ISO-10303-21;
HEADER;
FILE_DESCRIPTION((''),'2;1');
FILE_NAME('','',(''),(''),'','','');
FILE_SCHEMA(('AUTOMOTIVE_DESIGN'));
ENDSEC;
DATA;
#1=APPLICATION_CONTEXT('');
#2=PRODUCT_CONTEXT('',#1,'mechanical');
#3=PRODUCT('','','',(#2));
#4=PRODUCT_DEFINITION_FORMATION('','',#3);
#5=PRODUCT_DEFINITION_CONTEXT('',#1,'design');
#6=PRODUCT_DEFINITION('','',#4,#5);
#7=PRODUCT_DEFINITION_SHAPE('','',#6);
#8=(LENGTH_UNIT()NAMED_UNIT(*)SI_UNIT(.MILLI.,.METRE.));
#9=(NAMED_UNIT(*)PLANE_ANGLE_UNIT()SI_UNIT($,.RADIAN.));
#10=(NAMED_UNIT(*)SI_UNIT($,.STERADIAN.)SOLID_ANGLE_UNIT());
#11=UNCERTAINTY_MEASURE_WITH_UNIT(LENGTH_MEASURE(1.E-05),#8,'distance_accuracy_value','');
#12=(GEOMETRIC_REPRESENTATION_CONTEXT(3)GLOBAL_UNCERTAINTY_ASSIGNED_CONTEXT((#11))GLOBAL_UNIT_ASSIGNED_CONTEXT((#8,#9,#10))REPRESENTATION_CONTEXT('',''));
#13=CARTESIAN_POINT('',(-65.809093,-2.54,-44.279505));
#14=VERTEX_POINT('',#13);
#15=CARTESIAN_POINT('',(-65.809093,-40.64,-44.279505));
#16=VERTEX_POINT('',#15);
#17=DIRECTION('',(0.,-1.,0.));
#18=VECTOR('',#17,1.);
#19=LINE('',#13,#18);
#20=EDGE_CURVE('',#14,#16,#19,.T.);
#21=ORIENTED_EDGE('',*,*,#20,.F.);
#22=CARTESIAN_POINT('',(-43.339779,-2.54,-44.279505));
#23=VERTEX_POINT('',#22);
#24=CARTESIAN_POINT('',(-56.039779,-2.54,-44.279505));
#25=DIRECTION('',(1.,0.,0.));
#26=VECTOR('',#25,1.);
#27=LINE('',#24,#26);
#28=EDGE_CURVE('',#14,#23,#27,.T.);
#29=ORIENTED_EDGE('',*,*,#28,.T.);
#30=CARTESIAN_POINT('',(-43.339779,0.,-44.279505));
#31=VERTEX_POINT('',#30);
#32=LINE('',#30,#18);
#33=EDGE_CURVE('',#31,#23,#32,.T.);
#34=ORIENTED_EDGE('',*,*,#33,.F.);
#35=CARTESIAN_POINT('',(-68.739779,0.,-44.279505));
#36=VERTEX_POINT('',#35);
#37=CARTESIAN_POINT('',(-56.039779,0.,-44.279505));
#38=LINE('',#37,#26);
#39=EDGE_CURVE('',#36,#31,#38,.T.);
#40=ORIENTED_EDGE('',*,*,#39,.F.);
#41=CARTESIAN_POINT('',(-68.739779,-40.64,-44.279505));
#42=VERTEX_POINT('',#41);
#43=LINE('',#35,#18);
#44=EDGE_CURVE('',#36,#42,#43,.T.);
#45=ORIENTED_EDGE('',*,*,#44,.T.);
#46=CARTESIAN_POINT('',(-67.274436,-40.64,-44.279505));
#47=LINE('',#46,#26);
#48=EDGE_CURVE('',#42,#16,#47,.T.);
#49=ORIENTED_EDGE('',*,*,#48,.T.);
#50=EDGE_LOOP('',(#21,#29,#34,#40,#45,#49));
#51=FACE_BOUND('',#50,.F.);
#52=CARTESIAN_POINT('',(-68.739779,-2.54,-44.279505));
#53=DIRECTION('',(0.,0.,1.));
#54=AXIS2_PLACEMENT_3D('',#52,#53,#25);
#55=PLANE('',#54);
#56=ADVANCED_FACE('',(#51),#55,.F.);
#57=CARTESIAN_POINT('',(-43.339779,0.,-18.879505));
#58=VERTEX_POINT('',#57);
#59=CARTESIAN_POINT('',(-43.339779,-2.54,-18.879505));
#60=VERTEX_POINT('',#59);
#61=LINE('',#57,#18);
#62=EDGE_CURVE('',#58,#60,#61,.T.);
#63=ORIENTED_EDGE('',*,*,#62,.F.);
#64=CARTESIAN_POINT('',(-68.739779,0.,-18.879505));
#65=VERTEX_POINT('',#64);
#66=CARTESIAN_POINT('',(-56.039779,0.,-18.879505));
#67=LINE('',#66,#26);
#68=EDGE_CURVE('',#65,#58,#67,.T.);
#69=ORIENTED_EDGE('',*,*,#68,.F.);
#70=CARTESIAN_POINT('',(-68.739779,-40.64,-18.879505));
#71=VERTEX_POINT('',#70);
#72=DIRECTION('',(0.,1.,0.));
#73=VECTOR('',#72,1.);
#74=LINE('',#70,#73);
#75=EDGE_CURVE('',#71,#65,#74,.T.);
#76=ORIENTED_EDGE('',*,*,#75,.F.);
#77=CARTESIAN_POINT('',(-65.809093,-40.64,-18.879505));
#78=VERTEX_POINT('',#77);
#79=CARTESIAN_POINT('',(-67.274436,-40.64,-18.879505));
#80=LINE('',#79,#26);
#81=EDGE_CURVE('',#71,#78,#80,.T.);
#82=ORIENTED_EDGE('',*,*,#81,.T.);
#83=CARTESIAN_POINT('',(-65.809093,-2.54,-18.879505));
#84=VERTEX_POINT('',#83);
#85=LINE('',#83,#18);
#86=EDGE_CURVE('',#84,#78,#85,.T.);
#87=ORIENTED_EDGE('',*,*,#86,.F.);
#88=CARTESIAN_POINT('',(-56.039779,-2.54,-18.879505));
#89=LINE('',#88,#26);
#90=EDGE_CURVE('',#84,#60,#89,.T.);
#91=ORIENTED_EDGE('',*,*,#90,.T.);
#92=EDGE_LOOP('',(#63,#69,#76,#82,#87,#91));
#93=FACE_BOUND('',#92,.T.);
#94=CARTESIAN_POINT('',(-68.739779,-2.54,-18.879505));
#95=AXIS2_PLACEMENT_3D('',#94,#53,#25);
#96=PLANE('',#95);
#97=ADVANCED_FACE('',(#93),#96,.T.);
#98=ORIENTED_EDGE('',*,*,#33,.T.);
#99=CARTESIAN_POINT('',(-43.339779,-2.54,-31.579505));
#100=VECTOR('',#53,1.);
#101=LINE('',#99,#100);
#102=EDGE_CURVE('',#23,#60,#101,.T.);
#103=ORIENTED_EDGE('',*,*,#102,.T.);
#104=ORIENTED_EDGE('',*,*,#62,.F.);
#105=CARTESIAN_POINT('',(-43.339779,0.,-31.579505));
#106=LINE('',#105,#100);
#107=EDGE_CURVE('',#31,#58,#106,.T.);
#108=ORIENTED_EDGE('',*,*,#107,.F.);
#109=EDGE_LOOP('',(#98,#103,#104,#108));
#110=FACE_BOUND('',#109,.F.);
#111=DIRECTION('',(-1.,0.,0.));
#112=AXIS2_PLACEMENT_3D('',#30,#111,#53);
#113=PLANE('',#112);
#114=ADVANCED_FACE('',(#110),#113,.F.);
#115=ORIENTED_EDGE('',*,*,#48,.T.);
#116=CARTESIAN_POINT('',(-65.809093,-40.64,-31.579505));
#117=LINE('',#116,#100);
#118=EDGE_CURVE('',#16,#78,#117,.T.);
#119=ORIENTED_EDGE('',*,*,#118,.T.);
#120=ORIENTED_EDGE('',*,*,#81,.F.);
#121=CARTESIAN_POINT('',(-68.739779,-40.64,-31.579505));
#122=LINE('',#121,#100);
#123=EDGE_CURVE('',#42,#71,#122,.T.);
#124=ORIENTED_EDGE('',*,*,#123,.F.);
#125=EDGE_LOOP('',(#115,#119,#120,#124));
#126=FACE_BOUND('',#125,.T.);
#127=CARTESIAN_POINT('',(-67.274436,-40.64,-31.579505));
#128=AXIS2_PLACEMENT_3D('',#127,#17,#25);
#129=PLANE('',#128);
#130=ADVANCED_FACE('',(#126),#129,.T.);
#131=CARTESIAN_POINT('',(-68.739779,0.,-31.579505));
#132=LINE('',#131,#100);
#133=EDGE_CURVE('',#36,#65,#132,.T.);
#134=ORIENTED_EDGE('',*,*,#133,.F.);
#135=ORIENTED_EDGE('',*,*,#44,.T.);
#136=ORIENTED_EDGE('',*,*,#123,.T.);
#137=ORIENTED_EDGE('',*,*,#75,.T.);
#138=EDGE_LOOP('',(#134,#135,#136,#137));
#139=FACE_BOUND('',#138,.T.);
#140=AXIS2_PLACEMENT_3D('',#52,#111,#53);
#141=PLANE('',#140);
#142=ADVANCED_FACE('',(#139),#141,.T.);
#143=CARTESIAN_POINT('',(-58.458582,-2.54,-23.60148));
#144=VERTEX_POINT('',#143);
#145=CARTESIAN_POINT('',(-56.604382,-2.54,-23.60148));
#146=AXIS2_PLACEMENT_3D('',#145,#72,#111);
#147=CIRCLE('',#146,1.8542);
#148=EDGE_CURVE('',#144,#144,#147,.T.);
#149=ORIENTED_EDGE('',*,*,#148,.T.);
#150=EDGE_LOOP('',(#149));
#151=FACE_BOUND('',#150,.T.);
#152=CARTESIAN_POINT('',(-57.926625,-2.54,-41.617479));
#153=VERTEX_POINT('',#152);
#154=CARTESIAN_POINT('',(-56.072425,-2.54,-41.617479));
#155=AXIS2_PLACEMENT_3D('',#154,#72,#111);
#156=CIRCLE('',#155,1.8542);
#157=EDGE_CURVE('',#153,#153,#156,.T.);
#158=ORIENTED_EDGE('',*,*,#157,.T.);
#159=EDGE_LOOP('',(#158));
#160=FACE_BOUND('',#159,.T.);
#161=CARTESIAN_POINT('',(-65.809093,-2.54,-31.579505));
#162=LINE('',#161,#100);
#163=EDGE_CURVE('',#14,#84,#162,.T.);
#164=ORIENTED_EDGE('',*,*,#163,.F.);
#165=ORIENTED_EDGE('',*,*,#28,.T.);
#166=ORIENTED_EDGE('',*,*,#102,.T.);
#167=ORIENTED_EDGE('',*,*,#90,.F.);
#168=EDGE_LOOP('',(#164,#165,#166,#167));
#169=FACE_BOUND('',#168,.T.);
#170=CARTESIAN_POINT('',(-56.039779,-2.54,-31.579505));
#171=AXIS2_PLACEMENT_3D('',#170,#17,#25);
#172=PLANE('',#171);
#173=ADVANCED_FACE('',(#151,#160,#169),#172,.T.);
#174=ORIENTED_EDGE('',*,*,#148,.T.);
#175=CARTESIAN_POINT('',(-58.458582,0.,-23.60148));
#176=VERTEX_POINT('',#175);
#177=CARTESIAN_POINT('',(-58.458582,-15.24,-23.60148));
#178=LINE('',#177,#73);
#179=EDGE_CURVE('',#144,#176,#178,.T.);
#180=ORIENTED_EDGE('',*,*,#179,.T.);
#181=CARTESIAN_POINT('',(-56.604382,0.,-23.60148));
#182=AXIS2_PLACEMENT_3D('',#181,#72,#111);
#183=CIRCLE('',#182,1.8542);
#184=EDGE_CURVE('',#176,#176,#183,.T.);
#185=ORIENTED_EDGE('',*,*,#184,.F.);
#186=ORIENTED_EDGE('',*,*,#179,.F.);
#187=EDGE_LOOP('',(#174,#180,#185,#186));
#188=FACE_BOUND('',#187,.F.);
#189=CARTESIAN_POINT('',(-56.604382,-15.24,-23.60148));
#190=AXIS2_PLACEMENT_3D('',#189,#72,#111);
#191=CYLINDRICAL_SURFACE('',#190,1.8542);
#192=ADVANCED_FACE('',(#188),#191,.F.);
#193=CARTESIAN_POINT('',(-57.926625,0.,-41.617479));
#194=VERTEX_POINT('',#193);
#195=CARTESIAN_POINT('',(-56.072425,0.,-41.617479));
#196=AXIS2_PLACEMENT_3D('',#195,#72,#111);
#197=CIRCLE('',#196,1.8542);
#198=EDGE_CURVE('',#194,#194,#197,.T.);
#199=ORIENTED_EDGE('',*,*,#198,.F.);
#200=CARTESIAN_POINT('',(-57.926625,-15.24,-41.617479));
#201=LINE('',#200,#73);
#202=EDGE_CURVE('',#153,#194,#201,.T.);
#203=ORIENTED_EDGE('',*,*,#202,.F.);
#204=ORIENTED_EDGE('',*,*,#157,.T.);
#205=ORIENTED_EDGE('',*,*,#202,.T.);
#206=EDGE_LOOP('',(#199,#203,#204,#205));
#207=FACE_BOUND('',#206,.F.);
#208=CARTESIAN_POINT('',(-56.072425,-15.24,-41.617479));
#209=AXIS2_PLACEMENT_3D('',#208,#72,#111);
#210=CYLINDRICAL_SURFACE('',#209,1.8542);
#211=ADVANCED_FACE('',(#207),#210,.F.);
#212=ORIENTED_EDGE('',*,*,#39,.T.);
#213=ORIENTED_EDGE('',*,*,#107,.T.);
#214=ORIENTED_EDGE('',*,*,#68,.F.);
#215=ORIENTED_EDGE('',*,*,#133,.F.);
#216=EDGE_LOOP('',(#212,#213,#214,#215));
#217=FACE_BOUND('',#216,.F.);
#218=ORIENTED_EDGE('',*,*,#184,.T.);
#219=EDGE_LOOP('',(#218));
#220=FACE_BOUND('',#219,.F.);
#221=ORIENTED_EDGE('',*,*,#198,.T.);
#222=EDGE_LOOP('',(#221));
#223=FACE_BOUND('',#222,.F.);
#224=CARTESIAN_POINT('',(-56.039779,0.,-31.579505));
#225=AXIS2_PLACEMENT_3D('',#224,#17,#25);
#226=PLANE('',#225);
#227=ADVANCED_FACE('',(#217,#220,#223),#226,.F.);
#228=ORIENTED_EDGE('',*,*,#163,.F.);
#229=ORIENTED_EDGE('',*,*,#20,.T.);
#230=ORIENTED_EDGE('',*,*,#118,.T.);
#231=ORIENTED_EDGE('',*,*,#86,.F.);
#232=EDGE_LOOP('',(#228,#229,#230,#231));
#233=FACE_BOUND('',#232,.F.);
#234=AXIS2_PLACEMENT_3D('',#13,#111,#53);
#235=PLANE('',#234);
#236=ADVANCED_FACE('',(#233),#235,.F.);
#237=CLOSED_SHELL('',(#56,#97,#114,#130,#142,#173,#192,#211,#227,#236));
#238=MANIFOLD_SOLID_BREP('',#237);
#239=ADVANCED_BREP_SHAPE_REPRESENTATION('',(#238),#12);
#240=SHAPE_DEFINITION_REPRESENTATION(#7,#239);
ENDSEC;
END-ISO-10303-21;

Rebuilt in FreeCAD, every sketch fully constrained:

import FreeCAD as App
import Part
import Sketcher
Q = App.Units.Quantity


def add_polygon(sketch, points):
    """Adds a closed chain of lines whose ends are joined by coincident constraints."""
    first, n = sketch.GeometryCount, len(points)
    for a, b in zip(points, points[1:] + points[:1]):
        sketch.addGeometry(Part.LineSegment(App.Vector(*a, 0), App.Vector(*b, 0)), False)
    for i in range(n):
        sketch.addConstraint(Sketcher.Constraint("Coincident", first + i, 2, first + (i + 1) % n, 1))

doc = App.newDocument("Part")
body = doc.addObject("PartDesign::Body", "Body")

# Sketch on XZ plane
sketch1 = doc.addObject("Sketcher::SketchObject", "Sketch")
body.addObject(sketch1)
sketch1.AttachmentSupport = (doc.XZ_Plane, [""])
sketch1.MapMode = "FlatFace"
add_polygon(sketch1, [(13, -11), (13, -35), (38, -35), (38, -11)])  # lines 0-3
sketch1.addConstraint([
    Sketcher.Constraint("Vertical", 0),
    Sketcher.Constraint("Horizontal", 1),
    Sketcher.Constraint("Vertical", 2),
    Sketcher.Constraint("Horizontal", 3),
    Sketcher.Constraint("DistanceX", 1, 1, 1, 2, Q("1 in")),
    Sketcher.Constraint("DistanceY", 0, 2, 0, 1, 24.116988),
    Sketcher.Constraint("DistanceY", 2, 2, -1, 1, 11.32282),
    Sketcher.Constraint("DistanceX", -1, 1, 0, 2, 12.572356),
])
pad1 = doc.addObject("PartDesign::Pad", "Pad")
body.addObject(pad1)
pad1.Profile = sketch1
pad1.Length = Q("0.1 in")

# Sketch on XZ plane
sketch2 = doc.addObject("Sketcher::SketchObject", "Sketch001")
body.addObject(sketch2)
sketch2.AttachmentSupport = (doc.XZ_Plane, [""])
sketch2.MapMode = "FlatFace"
sketch2.AttachmentOffset = App.Placement(App.Vector(0, 0, 0.1 * 25.4), App.Rotation())
add_polygon(sketch2, [(35, -11.3), (35, -35.4), (38, -35.4), (38, -11.3)])  # lines 0-3
sketch2.addConstraint([
    Sketcher.Constraint("Vertical", 0),
    Sketcher.Constraint("Horizontal", 1),
    Sketcher.Constraint("Vertical", 2),
    Sketcher.Constraint("Horizontal", 3),
    Sketcher.Constraint("DistanceY", 0, 2, 0, 1, 24.116988),
    Sketcher.Constraint("DistanceX", 1, 1, 1, 2, 2.930677),
    Sketcher.Constraint("DistanceX", -1, 1, 0, 2, 35.041678),
    Sketcher.Constraint("DistanceY", 2, 2, -1, 1, 11.32282),
])
pad2 = doc.addObject("PartDesign::Pad", "Pad001")
body.addObject(pad2)
pad2.Profile = sketch2
pad2.Length = Q("1.5 in")

# Sketch on XZ plane
sketch3 = doc.addObject("Sketcher::SketchObject", "Sketch002")
body.addObject(sketch3)
sketch3.AttachmentSupport = (doc.XZ_Plane, [""])
sketch3.MapMode = "FlatFace"
sketch3.AttachmentOffset = App.Placement(App.Vector(0, 0, 0.1 * 25.4), App.Rotation())
sketch3.addGeometry(Part.Circle(App.Vector(24.5, -16.2, 0), App.Vector(0, 0, 1), 1.9), False)
sketch3.addConstraint([
    Sketcher.Constraint("Diameter", 0, Q("0.146 in")),
    Sketcher.Constraint("DistanceY", 0, 3, -1, 1, 16.158691),
    Sketcher.Constraint("DistanceX", -1, 1, 0, 3, 24.482865),
])
doc.recompute()
hole = doc.addObject("PartDesign::Hole", "Hole")
body.addObject(hole)
hole.Profile = sketch3
hole.ThreadType = "None"
hole.Diameter = Q("0.146 in")
hole.DepthType = "Dimension"
hole.Depth = Q("0.5 in")
hole.DrillPoint = "Angled"
hole.DrillPointAngle = 118
body2 = doc.addObject("PartDesign::Body", "Body001")

# Sketch on XZ plane
sketch4 = doc.addObject("Sketcher::SketchObject", "Sketch003")
body2.addObject(sketch4)
sketch4.AttachmentSupport = (doc.getObject("XZ_Plane001"), [""])
sketch4.MapMode = "FlatFace"
add_polygon(sketch4, [(-69, -19), (-69, -44), (-43, -44), (-43, -19)])  # lines 0-3
sketch4.addConstraint([
    Sketcher.Constraint("Vertical", 0),
    Sketcher.Constraint("Horizontal", 1),
    Sketcher.Constraint("Vertical", 2),
    Sketcher.Constraint("Horizontal", 3),
    Sketcher.Constraint("Equal", 3, 0),
    Sketcher.Constraint("DistanceX", 1, 1, 1, 2, Q("1 in")),
    Sketcher.Constraint("DistanceX", 0, 2, -1, 1, 68.739779),
    Sketcher.Constraint("DistanceY", 0, 2, -1, 1, 44.279505),
])
pad3 = doc.addObject("PartDesign::Pad", "Pad002")
body2.addObject(pad3)
pad3.Profile = sketch4
pad3.Length = Q("0.1 in")

# Sketch on XZ plane
sketch5 = doc.addObject("Sketcher::SketchObject", "Sketch004")
body2.addObject(sketch5)
sketch5.AttachmentSupport = (doc.getObject("XZ_Plane001"), [""])
sketch5.MapMode = "FlatFace"
sketch5.AttachmentOffset = App.Placement(App.Vector(0, 0, 0.1 * 25.4), App.Rotation())
add_polygon(sketch5, [(-68.7, -18.9), (-68.7, -44.3), (-65.8, -44.3), (-65.8, -18.9)])  # lines 0-3
sketch5.addConstraint([
    Sketcher.Constraint("Vertical", 0),
    Sketcher.Constraint("Horizontal", 1),
    Sketcher.Constraint("Vertical", 2),
    Sketcher.Constraint("Horizontal", 3),
    Sketcher.Constraint("DistanceY", 0, 2, 0, 1, Q("1 in")),
    Sketcher.Constraint("DistanceX", 1, 1, 1, 2, 2.930686),
    Sketcher.Constraint("DistanceX", 0, 2, -1, 1, 68.739779),
    Sketcher.Constraint("DistanceY", 0, 2, -1, 1, 44.279505),
])
pad4 = doc.addObject("PartDesign::Pad", "Pad003")
body2.addObject(pad4)
pad4.Profile = sketch5
pad4.Length = Q("1.5 in")

# Sketch on XZ plane
sketch6 = doc.addObject("Sketcher::SketchObject", "Sketch005")
body2.addObject(sketch6)
sketch6.AttachmentSupport = (doc.getObject("XZ_Plane001"), [""])
sketch6.MapMode = "FlatFace"
sketch6.AttachmentOffset = App.Placement(App.Vector(0, 0, 0.1 * 25.4), App.Rotation())
sketch6.addGeometry(Part.Circle(App.Vector(-56.6, -23.6, 0), App.Vector(0, 0, 1), 1.9), False)
sketch6.addConstraint([
    Sketcher.Constraint("Diameter", 0, Q("0.146 in")),
    Sketcher.Constraint("DistanceX", 0, 3, -1, 1, 56.604382),
    Sketcher.Constraint("DistanceY", 0, 3, -1, 1, 23.60148),
])
doc.recompute()
hole2 = doc.addObject("PartDesign::Hole", "Hole001")
body2.addObject(hole2)
hole2.Profile = sketch6
hole2.ThreadType = "None"
hole2.Diameter = Q("0.146 in")
hole2.DepthType = "Dimension"
hole2.Depth = Q("0.5 in")
hole2.DrillPoint = "Angled"
hole2.DrillPointAngle = 118

# Sketch on XZ plane
sketch7 = doc.addObject("Sketcher::SketchObject", "Sketch006")
body2.addObject(sketch7)
sketch7.AttachmentSupport = (doc.getObject("XZ_Plane001"), [""])
sketch7.MapMode = "FlatFace"
sketch7.AttachmentOffset = App.Placement(App.Vector(0, 0, 0.1 * 25.4), App.Rotation())
sketch7.addGeometry(Part.Circle(App.Vector(-56.1, -41.6, 0), App.Vector(0, 0, 1), 1.9), False)
sketch7.addConstraint([
    Sketcher.Constraint("Diameter", 0, Q("0.146 in")),
    Sketcher.Constraint("DistanceY", 0, 3, -1, 1, 41.617479),
    Sketcher.Constraint("DistanceX", 0, 3, -1, 1, 56.072425),
])
doc.recompute()
hole3 = doc.addObject("PartDesign::Hole", "Hole002")
body2.addObject(hole3)
hole3.Profile = sketch7
hole3.ThreadType = "None"
hole3.Diameter = Q("0.146 in")
hole3.DepthType = "Dimension"
hole3.Depth = Q("0.5 in")
hole3.DrillPoint = "Angled"
hole3.DrillPointAngle = 118
body.Visibility = False

doc.recompute()
